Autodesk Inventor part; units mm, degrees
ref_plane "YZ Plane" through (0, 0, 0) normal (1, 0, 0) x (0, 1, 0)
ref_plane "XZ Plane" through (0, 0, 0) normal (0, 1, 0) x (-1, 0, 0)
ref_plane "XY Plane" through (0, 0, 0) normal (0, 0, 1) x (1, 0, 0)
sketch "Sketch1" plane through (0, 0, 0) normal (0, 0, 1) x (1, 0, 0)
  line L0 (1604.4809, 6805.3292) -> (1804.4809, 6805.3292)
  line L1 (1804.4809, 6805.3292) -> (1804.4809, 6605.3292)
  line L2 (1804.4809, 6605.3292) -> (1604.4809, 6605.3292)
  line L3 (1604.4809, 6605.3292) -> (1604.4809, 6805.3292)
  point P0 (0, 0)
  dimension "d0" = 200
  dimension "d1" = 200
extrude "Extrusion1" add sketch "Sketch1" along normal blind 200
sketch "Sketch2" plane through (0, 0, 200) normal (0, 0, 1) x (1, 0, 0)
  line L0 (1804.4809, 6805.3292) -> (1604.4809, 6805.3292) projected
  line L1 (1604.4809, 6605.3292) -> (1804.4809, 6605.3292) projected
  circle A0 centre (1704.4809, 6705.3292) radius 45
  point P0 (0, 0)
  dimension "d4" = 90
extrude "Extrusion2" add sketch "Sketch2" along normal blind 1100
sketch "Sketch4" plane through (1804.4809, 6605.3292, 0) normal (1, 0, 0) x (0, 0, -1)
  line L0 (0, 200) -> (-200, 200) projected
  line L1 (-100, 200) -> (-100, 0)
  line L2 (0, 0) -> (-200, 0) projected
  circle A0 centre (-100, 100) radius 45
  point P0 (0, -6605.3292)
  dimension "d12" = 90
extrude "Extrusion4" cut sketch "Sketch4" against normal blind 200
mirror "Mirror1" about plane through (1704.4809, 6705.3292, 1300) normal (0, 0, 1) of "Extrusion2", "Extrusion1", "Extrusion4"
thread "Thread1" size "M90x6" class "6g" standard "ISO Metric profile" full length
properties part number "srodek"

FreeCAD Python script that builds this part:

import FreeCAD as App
import Part
import Sketcher

doc = App.newDocument("Part")
body = doc.addObject("PartDesign::Body", "Body")

# Sketch on XY plane
sketch1 = body.newObject("Sketcher::SketchObject", "Sketch")
sketch1.AttachmentSupport = (doc.getObject("XY_Plane"), [""])
sketch1.MapMode = "FlatFace"
sketch1.addGeometry(Part.LineSegment(App.Vector(1804.4809, 6805.3292, 0), App.Vector(1604.4809, 6805.3292, 0)), False)
sketch1.addGeometry(Part.LineSegment(App.Vector(1604.4809, 6805.3292, 0), App.Vector(1604.4809, 6605.3292, 0)), False)
sketch1.addGeometry(Part.LineSegment(App.Vector(1604.4809, 6605.3292, 0), App.Vector(1804.4809, 6605.3292, 0)), False)
sketch1.addGeometry(Part.LineSegment(App.Vector(1804.4809, 6605.3292, 0), App.Vector(1804.4809, 6805.3292, 0)), False)
sketch1.addConstraint(Sketcher.Constraint("Coincident", 0, 2, 1, 1))
sketch1.addConstraint(Sketcher.Constraint("Coincident", 1, 2, 2, 1))
sketch1.addConstraint(Sketcher.Constraint("Coincident", 2, 2, 3, 1))
sketch1.addConstraint(Sketcher.Constraint("Coincident", 3, 2, 0, 1))
sketch1.addConstraint(Sketcher.Constraint("Horizontal", 0))
sketch1.addConstraint(Sketcher.Constraint("Vertical", 1))
sketch1.addConstraint(Sketcher.Constraint("Horizontal", 2))
sketch1.addConstraint(Sketcher.Constraint("Vertical", 3))
sketch1.addConstraint(Sketcher.Constraint("Equal", 2, 1))
sketch1.addConstraint(Sketcher.Constraint("DistanceX", 0, 2, 0, 1, 200.0))
sketch1.addConstraint(Sketcher.Constraint("DistanceX", -1, 1, 0, 2, 1604.481))
sketch1.addConstraint(Sketcher.Constraint("DistanceY", -1, 1, 0, 2, 6805.3292))
pad1 = body.newObject("PartDesign::Pad", "Pad")
pad1.Profile = sketch1
pad1.Length = 200

# Sketch on XY plane
sketch2 = body.newObject("Sketcher::SketchObject", "Sketch001")
sketch2.AttachmentSupport = (doc.getObject("XY_Plane"), [""])
sketch2.MapMode = "FlatFace"
sketch2.AttachmentOffset = App.Placement(App.Vector(0, 0, 200), App.Rotation())
sketch2.addGeometry(Part.Circle(App.Vector(1704.4809, 6705.3292, 0), App.Vector(0, 0, 1), 45), False)
sketch2.addConstraint(Sketcher.Constraint("Diameter", 0, 90.0))
sketch2.addConstraint(Sketcher.Constraint("DistanceX", -1, 1, 0, 3, 1704.481))
sketch2.addConstraint(Sketcher.Constraint("DistanceY", -1, 1, 0, 3, 6705.3292))
pad2 = body.newObject("PartDesign::Pad", "Pad001")
pad2.Profile = sketch2
pad2.Length = 1100

# Sketch on YZ plane
sketch3 = body.newObject("Sketcher::SketchObject", "Sketch002")
sketch3.AttachmentSupport = (doc.getObject("YZ_Plane"), [""])
sketch3.MapMode = "FlatFace"
sketch3.AttachmentOffset = App.Placement(App.Vector(0, 0, 1804.4809), App.Rotation())
sketch3.addGeometry(Part.Circle(App.Vector(6705.3292, 100, 0), App.Vector(0, 0, 1), 45), False)
sketch3.addConstraint(Sketcher.Constraint("Diameter", 0, 90.0))
sketch3.addConstraint(Sketcher.Constraint("DistanceY", -1, 1, 0, 3, 100.0))
sketch3.addConstraint(Sketcher.Constraint("DistanceX", -1, 1, 0, 3, 6705.3292))
pocket1 = body.newObject("PartDesign::Pocket", "Pocket")
pocket1.Profile = sketch3
pocket1.Length = 200
doc.recompute()

datumplane = body.newObject("PartDesign::Plane", "DatumPlane")
datumplane.AttachmentSupport = (doc.getObject("XY_Plane"), [""])
datumplane.MapMode = "FlatFace"
datumplane.AttachmentOffset = App.Placement(App.Vector(0, 0, 1300), App.Rotation())
mirrored = body.newObject("PartDesign::Mirrored", "Mirrored")
mirrored.Originals = [pad2, pad1, pocket1]
mirrored.MirrorPlane = (datumplane, [""])
body.Tip = mirrored

doc.recompute()
